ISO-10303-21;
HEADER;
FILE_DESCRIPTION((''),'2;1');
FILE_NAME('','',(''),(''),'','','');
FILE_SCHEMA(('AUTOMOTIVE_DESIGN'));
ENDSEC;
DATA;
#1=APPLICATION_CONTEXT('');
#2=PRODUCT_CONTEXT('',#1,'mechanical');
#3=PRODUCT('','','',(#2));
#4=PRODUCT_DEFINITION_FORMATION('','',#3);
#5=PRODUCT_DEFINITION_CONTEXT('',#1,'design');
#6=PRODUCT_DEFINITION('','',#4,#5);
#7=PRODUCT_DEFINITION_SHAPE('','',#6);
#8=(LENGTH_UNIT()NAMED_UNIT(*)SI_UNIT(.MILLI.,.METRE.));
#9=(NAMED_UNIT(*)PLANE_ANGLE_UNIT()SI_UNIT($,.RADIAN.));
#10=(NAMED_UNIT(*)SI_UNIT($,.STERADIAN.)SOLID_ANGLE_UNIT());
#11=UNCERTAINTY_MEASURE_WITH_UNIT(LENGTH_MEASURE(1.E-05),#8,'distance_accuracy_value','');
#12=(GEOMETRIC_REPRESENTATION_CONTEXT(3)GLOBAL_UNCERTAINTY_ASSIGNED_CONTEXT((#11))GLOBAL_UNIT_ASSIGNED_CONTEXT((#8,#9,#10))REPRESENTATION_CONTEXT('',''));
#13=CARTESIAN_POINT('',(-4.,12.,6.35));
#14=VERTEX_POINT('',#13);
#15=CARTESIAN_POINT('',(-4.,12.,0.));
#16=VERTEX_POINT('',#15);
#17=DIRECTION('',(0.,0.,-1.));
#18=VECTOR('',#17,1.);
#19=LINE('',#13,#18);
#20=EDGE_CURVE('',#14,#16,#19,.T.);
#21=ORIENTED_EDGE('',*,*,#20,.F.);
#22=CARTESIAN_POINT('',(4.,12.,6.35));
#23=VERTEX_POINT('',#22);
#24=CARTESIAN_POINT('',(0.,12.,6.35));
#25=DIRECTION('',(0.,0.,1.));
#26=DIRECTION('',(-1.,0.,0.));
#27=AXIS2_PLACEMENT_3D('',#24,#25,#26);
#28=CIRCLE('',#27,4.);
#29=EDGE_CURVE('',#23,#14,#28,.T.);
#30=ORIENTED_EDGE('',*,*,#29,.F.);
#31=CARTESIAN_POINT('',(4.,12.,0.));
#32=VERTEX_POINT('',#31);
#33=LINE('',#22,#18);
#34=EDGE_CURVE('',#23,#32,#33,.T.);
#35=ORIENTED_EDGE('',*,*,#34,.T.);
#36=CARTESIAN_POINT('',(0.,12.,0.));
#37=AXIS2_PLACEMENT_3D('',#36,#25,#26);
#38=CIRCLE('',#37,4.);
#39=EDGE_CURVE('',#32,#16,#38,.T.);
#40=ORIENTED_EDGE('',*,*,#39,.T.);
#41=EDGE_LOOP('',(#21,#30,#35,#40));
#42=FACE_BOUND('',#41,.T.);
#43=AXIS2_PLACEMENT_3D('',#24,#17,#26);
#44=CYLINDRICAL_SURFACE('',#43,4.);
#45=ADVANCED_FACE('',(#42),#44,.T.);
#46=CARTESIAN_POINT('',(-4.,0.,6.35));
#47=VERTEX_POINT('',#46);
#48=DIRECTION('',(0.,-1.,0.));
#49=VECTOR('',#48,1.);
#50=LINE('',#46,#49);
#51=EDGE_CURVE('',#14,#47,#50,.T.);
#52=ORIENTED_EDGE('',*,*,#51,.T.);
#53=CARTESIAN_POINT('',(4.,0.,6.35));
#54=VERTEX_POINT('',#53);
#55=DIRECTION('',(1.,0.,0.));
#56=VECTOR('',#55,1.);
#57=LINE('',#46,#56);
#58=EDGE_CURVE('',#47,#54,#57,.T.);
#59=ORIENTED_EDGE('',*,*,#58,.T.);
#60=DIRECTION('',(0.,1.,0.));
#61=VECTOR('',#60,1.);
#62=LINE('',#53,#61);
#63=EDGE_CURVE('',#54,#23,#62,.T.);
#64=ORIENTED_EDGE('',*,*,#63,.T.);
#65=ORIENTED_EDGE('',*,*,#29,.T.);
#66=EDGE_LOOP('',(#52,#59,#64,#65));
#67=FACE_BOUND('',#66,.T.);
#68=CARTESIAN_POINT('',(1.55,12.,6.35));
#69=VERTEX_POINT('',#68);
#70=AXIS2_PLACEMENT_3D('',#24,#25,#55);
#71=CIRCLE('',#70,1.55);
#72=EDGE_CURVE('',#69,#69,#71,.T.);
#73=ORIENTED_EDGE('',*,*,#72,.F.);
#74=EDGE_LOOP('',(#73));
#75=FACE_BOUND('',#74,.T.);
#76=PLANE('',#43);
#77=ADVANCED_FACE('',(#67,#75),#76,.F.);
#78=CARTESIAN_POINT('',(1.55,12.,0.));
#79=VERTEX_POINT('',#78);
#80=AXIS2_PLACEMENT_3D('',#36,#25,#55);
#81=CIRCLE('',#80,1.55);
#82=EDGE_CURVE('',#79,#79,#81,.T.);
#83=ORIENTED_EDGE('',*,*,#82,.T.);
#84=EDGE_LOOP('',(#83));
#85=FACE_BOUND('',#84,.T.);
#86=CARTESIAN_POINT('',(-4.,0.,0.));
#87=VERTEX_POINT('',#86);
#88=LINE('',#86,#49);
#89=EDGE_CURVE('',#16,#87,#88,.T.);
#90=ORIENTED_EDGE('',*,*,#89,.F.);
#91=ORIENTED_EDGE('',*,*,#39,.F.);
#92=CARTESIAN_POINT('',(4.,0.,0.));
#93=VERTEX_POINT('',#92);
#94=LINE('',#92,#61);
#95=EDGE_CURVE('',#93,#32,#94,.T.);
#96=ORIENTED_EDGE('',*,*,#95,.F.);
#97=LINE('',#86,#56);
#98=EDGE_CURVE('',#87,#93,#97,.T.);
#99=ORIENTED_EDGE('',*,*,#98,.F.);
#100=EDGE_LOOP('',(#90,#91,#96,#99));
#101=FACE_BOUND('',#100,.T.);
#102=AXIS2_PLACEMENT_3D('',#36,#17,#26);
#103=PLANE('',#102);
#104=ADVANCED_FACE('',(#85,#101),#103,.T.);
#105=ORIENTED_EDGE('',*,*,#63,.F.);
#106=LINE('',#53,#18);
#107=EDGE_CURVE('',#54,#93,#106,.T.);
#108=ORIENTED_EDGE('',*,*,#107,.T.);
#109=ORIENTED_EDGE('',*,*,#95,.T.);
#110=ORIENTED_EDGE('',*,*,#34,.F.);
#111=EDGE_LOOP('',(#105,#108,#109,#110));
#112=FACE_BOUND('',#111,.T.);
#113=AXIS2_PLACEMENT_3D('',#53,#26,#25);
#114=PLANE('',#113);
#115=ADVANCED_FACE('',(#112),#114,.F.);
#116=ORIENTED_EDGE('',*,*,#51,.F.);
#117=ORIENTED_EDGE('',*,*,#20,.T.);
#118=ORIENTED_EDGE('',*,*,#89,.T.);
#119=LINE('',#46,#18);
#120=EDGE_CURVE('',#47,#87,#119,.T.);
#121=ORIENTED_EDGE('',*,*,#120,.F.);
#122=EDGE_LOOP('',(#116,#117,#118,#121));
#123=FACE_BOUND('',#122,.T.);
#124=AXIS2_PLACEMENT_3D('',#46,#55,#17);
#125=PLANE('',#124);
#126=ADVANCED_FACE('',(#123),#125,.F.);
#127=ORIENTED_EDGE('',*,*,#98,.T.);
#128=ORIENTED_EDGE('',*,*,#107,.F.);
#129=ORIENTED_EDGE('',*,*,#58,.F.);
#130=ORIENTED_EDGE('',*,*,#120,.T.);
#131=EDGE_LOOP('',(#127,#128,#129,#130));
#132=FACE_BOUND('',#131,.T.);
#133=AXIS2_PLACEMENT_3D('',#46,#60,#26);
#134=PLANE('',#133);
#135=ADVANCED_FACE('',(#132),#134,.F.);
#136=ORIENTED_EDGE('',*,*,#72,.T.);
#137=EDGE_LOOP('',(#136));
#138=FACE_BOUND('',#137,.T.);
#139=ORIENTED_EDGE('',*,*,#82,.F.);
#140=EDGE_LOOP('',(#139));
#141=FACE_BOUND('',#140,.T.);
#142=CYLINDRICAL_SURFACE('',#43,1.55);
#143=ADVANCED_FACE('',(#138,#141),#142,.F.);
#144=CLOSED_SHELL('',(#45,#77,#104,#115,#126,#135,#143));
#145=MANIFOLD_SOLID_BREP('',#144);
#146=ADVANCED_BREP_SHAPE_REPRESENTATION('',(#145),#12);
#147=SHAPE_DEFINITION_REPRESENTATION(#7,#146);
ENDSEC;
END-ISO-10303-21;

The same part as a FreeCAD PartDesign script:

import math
import FreeCAD as App
import Part
import Sketcher
from FreeCAD import Vector

doc = App.newDocument("Part")
body = doc.addObject("PartDesign::Body", "Body")

sketch1 = body.newObject("Sketcher::SketchObject", "Sketch")
sketch1.AttachmentSupport = (doc.getObject("XY_Plane"), [""])
sketch1.MapMode = "FlatFace"
sketch1.addGeometry(Part.LineSegment(Vector(-4, 0, 0), Vector(4, 0, 0)), False)
sketch1.addGeometry(Part.LineSegment(Vector(4, 0, 0), Vector(4, 12, 0)), False)
sketch1.addGeometry(Part.ArcOfCircle(Part.Circle(Vector(0, 12, 0), Vector(0, 0, 1), 4), math.radians(0), math.radians(180)), False)
sketch1.addGeometry(Part.LineSegment(Vector(-4, 12, 0), Vector(-4, 0, 0)), False)
sketch1.addGeometry(Part.Circle(Vector(0, 12, 0), Vector(0, 0, 1), 1.6), False)
sketch1.addConstraint(Sketcher.Constraint("Coincident", 0, 2, 1, 1))
sketch1.addConstraint(Sketcher.Constraint("Tangent", 1, 2, 2, 1))
sketch1.addConstraint(Sketcher.Constraint("Tangent", 2, 2, 3, 1))
sketch1.addConstraint(Sketcher.Constraint("Coincident", 3, 2, 0, 1))
sketch1.addConstraint(Sketcher.Constraint("Horizontal", 0))
sketch1.addConstraint(Sketcher.Constraint("Vertical", 1))
sketch1.addConstraint(Sketcher.Constraint("Vertical", 3))
sketch1.addConstraint(Sketcher.Constraint("Coincident", 4, 3, 2, 3))
sketch1.addConstraint(Sketcher.Constraint("Symmetric", 0, 2, 3, 2, -1, 1))
sketch1.addConstraint(Sketcher.Constraint("Radius", 2, 4.0))
sketch1.addConstraint(Sketcher.Constraint("Diameter", 4, 3.1))
sketch1.addConstraint(Sketcher.Constraint("DistanceY", 1, 1, 1, 2, 12.0))
pad1 = body.newObject("PartDesign::Pad", "Pad")
pad1.Profile = sketch1
pad1.Length = 6.35

doc.recompute()
